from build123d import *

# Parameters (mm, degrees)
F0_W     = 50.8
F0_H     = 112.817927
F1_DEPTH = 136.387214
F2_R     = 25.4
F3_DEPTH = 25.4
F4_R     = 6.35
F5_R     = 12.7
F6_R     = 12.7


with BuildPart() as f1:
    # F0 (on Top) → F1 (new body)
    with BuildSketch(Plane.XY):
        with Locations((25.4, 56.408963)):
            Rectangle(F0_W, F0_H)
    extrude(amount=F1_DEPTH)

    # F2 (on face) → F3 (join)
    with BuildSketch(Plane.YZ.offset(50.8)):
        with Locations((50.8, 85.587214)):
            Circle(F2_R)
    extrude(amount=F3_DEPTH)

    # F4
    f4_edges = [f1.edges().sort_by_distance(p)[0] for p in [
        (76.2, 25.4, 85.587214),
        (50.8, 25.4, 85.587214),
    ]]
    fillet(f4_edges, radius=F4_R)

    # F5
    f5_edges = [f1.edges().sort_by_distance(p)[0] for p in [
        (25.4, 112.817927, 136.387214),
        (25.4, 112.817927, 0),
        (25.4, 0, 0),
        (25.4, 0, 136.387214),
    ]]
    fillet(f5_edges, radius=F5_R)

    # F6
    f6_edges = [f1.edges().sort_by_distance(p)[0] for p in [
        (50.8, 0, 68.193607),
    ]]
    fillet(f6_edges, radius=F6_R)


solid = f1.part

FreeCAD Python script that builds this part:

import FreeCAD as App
import Part
import Sketcher

V = App.Vector
Q = App.Units.Quantity


def edges_at(feature, points):
    """Names of the edges that pass closest to the given points."""
    edges = feature.Shape.Edges
    near = lambda p: min(range(len(edges)), key=lambda i: edges[i].distToShape(Part.Vertex(*p))[0])
    return sorted({f"Edge{near(p) + 1}" for p in points})


def add_polygon(sketch, points):
    """Adds a closed chain of lines whose ends are joined by coincident constraints."""
    first, n = sketch.GeometryCount, len(points)
    for a, b in zip(points, points[1:] + points[:1]):
        sketch.addGeometry(Part.LineSegment(App.Vector(*a, 0), App.Vector(*b, 0)), False)
    for i in range(n):
        sketch.addConstraint(Sketcher.Constraint("Coincident", first + i, 2, first + (i + 1) % n, 1))

doc = App.newDocument("Part")
body = doc.addObject("PartDesign::Body", "Body")

# Sketch on XY plane
sketch1 = body.newObject("Sketcher::SketchObject", "Sketch")
sketch1.AttachmentSupport = (doc.getObject("XY_Plane"), [""])
sketch1.MapMode = "FlatFace"
add_polygon(sketch1, [(0, 112.817926), (0, 0), (50.8, 0), (50.8, 112.817926)])  # lines 0-3
sketch1.addConstraint([
    Sketcher.Constraint("Vertical", 0),
    Sketcher.Constraint("Horizontal", 1),
    Sketcher.Constraint("Vertical", 2),
    Sketcher.Constraint("Horizontal", 3),
    Sketcher.Constraint("Coincident", 0, 2, -1, 1),
    Sketcher.Constraint("DistanceX", 1, 1, 1, 2, Q("2 in")),
    Sketcher.Constraint("DistanceY", 0, 2, 0, 1, Q("112.817927 mm")),
])
pad1 = body.newObject("PartDesign::Pad", "Pad")
pad1.Profile = sketch1
pad1.Length = 136.387214

# Sketch on YZ plane
sketch2 = body.newObject("Sketcher::SketchObject", "Sketch001")
sketch2.AttachmentSupport = (doc.getObject("YZ_Plane"), [""])
sketch2.MapMode = "FlatFace"
sketch2.AttachmentOffset = App.Placement(V(0, 0, 2 * 25.4), App.Rotation())
sketch2.addGeometry(Part.Circle(V(50.8, 85.587214, 0), V(0, 0, 1), 25.4), False)
sketch2.addConstraint([
    Sketcher.Constraint("Diameter", 0, Q("2 in")),
    Sketcher.Constraint("DistanceX", -1, 1, 0, 3, Q("2 in")),
    Sketcher.Constraint("DistanceY", -1, 1, 0, 3, Q("85.587214 mm")),
])
pad2 = body.newObject("PartDesign::Pad", "Pad001")
pad2.Profile = sketch2
pad2.Length = Q("1 in")
doc.recompute()

fillet = body.newObject("PartDesign::Fillet", "Fillet")
fillet.Base = (pad2, edges_at(pad2, [(76.2, 25.4, 85.587), (50.8, 25.4, 85.587)]))
fillet.Radius = Q("0.25 in")
doc.recompute()

fillet2 = body.newObject("PartDesign::Fillet", "Fillet001")
fillet2.Base = (fillet, edges_at(fillet, [
    (25.4, 112.818, 136.387),
    (25.4, 112.818, 0),
    (25.4, 0, 0),
    (25.4, 0, 136.387),
]))
fillet2.Radius = Q("0.5 in")
doc.recompute()

fillet3 = body.newObject("PartDesign::Fillet", "Fillet002")
fillet3.Base = (fillet2, edges_at(fillet2, [(50.8, 0, 68.194)]))
fillet3.Radius = Q("0.5 in")

doc.recompute()
